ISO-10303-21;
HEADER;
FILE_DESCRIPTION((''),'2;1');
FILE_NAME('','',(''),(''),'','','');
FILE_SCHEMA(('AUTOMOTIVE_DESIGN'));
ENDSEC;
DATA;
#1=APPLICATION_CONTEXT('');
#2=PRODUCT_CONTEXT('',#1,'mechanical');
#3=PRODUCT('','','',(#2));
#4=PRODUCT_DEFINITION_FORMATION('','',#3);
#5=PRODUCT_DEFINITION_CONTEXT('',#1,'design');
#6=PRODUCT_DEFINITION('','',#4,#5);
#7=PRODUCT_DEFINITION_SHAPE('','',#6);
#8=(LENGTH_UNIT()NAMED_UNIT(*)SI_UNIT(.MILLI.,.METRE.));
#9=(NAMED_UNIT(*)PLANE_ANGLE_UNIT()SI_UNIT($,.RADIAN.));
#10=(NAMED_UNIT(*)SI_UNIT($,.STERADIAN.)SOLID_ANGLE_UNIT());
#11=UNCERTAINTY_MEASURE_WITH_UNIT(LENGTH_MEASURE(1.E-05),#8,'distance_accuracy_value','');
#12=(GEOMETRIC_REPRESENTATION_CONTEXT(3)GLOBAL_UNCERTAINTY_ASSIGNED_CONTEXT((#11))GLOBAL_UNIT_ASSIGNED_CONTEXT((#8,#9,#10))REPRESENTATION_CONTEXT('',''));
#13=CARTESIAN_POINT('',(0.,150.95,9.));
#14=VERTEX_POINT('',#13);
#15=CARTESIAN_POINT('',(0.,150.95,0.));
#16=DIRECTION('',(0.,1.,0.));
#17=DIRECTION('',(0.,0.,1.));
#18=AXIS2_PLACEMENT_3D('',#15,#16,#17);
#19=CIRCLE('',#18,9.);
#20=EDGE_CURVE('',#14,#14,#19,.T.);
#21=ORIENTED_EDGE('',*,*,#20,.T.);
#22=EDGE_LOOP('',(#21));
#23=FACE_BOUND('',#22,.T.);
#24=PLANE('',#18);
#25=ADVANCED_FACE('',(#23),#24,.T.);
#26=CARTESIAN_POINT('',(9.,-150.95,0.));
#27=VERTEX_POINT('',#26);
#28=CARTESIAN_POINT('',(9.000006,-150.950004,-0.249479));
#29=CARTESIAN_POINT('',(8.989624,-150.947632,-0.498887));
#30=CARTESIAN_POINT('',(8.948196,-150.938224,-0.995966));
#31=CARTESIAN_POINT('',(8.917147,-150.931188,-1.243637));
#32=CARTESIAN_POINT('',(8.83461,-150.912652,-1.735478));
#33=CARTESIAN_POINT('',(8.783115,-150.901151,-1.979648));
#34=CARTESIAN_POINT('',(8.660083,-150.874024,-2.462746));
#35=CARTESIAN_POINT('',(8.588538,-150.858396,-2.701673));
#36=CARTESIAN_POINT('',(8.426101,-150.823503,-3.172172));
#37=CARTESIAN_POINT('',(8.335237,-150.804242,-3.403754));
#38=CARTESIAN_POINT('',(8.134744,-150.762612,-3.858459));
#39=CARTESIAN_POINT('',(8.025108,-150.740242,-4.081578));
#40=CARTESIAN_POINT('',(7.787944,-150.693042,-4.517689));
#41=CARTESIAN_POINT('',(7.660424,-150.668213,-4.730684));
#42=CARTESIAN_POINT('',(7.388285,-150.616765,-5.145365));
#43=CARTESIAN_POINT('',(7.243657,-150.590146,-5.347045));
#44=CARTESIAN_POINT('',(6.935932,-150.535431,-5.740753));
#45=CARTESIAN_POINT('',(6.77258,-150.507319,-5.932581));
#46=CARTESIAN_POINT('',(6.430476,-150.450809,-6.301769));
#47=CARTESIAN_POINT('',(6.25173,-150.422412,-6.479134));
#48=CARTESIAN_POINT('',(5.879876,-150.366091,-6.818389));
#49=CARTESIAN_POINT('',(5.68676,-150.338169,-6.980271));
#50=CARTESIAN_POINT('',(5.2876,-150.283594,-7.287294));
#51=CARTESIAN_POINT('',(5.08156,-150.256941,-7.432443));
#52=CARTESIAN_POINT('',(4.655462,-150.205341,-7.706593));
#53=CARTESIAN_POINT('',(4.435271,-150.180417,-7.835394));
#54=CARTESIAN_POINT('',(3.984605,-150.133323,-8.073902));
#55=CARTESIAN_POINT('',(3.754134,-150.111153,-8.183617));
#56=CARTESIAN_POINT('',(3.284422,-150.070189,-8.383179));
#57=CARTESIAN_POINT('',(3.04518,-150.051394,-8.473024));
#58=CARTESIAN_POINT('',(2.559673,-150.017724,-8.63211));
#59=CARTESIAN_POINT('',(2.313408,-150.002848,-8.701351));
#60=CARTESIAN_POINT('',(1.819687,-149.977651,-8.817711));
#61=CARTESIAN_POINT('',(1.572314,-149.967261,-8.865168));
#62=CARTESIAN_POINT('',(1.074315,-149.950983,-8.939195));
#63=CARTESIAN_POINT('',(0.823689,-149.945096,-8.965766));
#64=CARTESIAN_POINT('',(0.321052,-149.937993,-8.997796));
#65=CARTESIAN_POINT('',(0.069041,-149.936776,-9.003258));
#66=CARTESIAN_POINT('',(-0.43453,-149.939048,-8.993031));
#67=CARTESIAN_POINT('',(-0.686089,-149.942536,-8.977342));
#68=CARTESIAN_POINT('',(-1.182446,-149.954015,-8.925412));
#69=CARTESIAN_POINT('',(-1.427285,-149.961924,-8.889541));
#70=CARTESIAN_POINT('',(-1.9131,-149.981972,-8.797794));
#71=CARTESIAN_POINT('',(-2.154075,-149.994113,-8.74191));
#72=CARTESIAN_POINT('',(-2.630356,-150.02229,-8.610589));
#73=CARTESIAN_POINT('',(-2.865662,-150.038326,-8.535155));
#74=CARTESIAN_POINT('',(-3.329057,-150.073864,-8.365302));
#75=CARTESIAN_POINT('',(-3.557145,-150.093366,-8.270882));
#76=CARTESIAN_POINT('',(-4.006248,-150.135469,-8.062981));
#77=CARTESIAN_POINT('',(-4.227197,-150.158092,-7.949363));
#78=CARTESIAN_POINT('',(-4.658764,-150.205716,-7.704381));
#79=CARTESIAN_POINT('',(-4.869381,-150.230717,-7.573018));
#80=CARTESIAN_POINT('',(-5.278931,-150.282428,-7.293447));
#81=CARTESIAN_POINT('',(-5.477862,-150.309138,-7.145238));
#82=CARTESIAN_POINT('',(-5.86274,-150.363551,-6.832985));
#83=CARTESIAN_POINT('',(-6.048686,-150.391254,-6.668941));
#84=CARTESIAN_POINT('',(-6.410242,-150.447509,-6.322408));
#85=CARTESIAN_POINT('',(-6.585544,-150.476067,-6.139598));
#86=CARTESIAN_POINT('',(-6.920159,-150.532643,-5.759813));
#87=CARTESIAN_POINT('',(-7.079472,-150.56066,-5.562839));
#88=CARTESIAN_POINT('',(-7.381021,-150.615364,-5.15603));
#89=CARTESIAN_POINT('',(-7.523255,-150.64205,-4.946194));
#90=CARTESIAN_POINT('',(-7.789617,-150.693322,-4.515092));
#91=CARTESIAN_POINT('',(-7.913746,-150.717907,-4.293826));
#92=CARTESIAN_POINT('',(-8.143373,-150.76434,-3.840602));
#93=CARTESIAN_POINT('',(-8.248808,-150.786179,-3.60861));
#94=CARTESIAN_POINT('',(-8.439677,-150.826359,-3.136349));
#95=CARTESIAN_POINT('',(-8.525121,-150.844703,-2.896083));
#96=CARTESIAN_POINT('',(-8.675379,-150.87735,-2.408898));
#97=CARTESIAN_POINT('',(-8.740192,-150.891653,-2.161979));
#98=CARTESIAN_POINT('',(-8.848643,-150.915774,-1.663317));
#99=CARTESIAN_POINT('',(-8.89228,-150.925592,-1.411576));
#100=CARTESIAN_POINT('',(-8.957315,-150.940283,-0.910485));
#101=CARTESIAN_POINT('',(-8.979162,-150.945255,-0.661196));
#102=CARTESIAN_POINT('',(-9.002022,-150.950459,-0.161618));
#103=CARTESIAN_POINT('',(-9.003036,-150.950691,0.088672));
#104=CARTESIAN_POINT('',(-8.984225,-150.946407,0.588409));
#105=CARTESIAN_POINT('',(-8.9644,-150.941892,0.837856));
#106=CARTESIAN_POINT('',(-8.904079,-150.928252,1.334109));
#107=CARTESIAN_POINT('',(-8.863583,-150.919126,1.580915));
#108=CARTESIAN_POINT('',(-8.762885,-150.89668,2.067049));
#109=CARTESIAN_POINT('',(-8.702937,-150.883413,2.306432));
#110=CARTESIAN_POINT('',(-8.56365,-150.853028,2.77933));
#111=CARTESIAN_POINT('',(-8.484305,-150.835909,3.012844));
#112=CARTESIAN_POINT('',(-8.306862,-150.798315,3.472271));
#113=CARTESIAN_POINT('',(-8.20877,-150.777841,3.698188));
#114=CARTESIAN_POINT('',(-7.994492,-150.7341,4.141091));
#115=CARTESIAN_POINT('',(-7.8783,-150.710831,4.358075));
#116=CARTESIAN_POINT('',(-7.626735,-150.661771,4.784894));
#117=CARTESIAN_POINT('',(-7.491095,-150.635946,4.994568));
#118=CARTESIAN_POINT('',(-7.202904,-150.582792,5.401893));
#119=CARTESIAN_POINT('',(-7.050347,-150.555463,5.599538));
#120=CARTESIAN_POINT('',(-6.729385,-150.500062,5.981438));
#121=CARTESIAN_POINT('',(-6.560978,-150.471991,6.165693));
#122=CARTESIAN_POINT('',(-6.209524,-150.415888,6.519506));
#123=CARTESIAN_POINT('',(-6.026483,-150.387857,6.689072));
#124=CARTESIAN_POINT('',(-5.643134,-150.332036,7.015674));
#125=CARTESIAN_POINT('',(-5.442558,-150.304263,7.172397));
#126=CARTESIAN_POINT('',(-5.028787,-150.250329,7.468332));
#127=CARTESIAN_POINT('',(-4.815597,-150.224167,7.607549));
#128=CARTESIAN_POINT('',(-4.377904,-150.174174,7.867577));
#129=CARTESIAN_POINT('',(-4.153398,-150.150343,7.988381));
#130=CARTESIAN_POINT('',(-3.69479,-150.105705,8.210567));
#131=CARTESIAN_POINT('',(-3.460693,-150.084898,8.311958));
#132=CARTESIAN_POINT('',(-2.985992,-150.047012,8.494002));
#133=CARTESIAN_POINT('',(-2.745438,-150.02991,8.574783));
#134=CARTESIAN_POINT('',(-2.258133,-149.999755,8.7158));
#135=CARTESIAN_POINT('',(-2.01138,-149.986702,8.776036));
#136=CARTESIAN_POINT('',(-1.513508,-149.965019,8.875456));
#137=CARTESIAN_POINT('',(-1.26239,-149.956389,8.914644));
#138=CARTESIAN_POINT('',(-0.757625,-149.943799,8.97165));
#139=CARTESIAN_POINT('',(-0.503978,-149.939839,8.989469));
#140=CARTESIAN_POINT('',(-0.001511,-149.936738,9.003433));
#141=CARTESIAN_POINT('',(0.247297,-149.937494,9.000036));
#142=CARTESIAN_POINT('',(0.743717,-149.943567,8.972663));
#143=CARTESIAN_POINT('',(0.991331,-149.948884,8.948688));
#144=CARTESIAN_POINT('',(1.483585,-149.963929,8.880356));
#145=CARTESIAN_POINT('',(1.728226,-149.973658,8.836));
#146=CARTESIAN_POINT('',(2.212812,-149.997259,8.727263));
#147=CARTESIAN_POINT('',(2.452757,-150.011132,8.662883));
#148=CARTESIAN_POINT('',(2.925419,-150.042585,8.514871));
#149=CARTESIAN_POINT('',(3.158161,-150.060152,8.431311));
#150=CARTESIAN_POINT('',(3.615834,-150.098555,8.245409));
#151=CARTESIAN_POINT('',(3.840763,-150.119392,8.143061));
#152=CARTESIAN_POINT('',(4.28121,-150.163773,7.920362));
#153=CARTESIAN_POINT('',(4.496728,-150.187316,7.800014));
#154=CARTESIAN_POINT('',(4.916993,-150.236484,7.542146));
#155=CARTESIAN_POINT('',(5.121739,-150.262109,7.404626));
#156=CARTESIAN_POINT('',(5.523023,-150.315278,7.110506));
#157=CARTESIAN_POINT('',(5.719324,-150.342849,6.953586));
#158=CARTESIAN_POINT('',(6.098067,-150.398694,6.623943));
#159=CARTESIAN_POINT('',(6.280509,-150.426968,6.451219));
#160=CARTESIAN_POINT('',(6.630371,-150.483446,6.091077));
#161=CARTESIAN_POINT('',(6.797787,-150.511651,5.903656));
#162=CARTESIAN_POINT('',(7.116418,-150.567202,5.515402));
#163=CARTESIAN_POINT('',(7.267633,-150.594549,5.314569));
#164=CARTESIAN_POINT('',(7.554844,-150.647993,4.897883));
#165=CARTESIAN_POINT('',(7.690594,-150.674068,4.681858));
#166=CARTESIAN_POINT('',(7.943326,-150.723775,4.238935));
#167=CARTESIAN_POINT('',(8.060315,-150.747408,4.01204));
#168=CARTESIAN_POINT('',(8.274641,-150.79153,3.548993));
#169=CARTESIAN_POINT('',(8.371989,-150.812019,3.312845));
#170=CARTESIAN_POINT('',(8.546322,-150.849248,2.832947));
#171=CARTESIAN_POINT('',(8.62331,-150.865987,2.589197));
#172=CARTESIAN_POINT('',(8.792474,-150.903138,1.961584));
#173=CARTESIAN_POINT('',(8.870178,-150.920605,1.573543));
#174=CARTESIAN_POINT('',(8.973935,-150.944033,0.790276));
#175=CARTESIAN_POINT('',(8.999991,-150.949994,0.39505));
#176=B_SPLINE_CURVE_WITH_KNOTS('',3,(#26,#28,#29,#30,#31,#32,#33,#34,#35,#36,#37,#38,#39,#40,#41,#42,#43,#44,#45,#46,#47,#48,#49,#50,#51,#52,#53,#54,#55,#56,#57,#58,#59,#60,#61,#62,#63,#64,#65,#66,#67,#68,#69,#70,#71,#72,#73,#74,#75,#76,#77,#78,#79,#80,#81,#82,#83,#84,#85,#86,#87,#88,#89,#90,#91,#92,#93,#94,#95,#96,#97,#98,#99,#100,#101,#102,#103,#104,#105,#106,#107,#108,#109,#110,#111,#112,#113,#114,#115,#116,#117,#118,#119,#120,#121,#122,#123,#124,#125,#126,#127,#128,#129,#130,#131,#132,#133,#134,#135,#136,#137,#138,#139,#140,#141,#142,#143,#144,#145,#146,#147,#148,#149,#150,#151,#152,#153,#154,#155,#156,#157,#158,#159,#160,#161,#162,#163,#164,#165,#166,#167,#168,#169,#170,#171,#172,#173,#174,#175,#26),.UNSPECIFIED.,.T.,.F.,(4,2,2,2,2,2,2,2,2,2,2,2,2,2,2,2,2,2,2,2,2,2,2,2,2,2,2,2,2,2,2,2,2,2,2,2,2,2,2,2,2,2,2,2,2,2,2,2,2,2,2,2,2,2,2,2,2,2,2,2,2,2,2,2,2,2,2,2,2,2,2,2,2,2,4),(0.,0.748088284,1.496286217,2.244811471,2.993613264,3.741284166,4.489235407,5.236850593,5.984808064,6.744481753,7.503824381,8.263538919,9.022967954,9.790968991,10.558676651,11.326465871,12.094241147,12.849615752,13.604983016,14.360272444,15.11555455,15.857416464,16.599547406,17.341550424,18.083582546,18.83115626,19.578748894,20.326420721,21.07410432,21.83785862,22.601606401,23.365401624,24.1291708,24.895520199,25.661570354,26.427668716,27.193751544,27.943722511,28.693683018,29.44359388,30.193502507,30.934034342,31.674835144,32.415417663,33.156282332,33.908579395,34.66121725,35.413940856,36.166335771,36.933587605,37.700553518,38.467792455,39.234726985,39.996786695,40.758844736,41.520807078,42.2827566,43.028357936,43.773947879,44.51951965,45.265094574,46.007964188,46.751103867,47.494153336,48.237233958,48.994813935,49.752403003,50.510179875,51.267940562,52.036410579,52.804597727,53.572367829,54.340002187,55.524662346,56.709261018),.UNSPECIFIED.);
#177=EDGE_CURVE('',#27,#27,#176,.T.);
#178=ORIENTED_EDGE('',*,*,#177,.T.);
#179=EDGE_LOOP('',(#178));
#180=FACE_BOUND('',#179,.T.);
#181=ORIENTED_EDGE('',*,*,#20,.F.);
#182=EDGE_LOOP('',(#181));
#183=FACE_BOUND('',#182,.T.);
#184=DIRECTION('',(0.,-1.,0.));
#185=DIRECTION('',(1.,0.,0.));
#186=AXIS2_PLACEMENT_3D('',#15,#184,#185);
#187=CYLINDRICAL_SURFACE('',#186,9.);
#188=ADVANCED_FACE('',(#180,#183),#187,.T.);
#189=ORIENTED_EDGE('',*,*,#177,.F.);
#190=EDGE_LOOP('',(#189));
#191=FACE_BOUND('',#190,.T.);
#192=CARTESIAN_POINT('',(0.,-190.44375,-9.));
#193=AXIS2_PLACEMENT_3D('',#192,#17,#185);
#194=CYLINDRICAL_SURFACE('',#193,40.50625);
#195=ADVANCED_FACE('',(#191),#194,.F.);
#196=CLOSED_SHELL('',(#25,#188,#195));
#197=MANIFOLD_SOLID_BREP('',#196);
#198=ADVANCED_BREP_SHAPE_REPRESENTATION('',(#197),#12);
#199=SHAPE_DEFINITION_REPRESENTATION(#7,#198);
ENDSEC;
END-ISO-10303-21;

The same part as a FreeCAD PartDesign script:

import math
import FreeCAD as App
import Part
import Sketcher

V = App.Vector
Q = App.Units.Quantity

doc = App.newDocument("Part")
body = doc.addObject("PartDesign::Body", "Body")

# Sketch on XZ plane
sketch1 = body.newObject("Sketcher::SketchObject", "Sketch")
sketch1.AttachmentSupport = (doc.getObject("XZ_Plane"), [""])
sketch1.MapMode = "FlatFace"
sketch1.addGeometry(Part.Circle(V(0, 0, 0), V(0, 0, 1), 9), False)
sketch1.addConstraint([
    Sketcher.Constraint("Coincident", 0, 3, -1, 1),
    Sketcher.Constraint("Diameter", 0, Q("18 mm")),
])

# Sketch on XY plane
sketch2 = body.newObject("Sketcher::SketchObject", "Sketch001")
sketch2.AttachmentSupport = (doc.getObject("XY_Plane"), [""])
sketch2.MapMode = "FlatFace"
sketch2.addGeometry(Part.LineSegment(V(0, -151, 0), V(0, 151, 0)), False)
sketch2.addConstraint([
    Sketcher.Constraint("Vertical", 0),
    Sketcher.Constraint("Symmetric", 0, 1, 0, 2, -1, 1),
    Sketcher.Constraint("DistanceY", 0, 1, 0, 2, Q("301.9 mm")),
])
doc.recompute()

additivepipe = body.newObject("PartDesign::AdditivePipe", "AdditivePipe")
additivepipe.Profile = sketch1
additivepipe.Spine = (sketch2, ["Edge1"])

# Sketch on XY plane
sketch3 = body.newObject("Sketcher::SketchObject", "Sketch002")
sketch3.AttachmentSupport = (doc.getObject("XY_Plane"), [""])
sketch3.MapMode = "FlatFace"
sketch3.addGeometry([
    Part.ArcOfCircle(Part.Circle(V(0, -190, 0), V(0, 0, 1), 41), math.radians(77), math.radians(103)),
    Part.LineSegment(V(-9, -151, 0), V(9, -151, 0)),
], False)
sketch3.addConstraint([
    Sketcher.Constraint("Coincident", 0, 1, 1, 2),
    Sketcher.Constraint("Coincident", 1, 1, 0, 2),
    Sketcher.Constraint("Horizontal", 1),
    Sketcher.Constraint("PointOnObject", 0, 3, -2),
    Sketcher.Constraint("DistanceX", 1, 1, 1, 2, Q("18 mm")),
    Sketcher.Constraint("DistanceY", 0, 1, -1, 1, Q("150.95 mm")),
    Sketcher.Constraint("Radius", 0, Q("40.50625 mm")),
])
pocket1 = body.newObject("PartDesign::Pocket", "Pocket")
pocket1.Profile = sketch3
pocket1.Type = "ThroughAll"
pocket1.Midplane = True

doc.recompute()
